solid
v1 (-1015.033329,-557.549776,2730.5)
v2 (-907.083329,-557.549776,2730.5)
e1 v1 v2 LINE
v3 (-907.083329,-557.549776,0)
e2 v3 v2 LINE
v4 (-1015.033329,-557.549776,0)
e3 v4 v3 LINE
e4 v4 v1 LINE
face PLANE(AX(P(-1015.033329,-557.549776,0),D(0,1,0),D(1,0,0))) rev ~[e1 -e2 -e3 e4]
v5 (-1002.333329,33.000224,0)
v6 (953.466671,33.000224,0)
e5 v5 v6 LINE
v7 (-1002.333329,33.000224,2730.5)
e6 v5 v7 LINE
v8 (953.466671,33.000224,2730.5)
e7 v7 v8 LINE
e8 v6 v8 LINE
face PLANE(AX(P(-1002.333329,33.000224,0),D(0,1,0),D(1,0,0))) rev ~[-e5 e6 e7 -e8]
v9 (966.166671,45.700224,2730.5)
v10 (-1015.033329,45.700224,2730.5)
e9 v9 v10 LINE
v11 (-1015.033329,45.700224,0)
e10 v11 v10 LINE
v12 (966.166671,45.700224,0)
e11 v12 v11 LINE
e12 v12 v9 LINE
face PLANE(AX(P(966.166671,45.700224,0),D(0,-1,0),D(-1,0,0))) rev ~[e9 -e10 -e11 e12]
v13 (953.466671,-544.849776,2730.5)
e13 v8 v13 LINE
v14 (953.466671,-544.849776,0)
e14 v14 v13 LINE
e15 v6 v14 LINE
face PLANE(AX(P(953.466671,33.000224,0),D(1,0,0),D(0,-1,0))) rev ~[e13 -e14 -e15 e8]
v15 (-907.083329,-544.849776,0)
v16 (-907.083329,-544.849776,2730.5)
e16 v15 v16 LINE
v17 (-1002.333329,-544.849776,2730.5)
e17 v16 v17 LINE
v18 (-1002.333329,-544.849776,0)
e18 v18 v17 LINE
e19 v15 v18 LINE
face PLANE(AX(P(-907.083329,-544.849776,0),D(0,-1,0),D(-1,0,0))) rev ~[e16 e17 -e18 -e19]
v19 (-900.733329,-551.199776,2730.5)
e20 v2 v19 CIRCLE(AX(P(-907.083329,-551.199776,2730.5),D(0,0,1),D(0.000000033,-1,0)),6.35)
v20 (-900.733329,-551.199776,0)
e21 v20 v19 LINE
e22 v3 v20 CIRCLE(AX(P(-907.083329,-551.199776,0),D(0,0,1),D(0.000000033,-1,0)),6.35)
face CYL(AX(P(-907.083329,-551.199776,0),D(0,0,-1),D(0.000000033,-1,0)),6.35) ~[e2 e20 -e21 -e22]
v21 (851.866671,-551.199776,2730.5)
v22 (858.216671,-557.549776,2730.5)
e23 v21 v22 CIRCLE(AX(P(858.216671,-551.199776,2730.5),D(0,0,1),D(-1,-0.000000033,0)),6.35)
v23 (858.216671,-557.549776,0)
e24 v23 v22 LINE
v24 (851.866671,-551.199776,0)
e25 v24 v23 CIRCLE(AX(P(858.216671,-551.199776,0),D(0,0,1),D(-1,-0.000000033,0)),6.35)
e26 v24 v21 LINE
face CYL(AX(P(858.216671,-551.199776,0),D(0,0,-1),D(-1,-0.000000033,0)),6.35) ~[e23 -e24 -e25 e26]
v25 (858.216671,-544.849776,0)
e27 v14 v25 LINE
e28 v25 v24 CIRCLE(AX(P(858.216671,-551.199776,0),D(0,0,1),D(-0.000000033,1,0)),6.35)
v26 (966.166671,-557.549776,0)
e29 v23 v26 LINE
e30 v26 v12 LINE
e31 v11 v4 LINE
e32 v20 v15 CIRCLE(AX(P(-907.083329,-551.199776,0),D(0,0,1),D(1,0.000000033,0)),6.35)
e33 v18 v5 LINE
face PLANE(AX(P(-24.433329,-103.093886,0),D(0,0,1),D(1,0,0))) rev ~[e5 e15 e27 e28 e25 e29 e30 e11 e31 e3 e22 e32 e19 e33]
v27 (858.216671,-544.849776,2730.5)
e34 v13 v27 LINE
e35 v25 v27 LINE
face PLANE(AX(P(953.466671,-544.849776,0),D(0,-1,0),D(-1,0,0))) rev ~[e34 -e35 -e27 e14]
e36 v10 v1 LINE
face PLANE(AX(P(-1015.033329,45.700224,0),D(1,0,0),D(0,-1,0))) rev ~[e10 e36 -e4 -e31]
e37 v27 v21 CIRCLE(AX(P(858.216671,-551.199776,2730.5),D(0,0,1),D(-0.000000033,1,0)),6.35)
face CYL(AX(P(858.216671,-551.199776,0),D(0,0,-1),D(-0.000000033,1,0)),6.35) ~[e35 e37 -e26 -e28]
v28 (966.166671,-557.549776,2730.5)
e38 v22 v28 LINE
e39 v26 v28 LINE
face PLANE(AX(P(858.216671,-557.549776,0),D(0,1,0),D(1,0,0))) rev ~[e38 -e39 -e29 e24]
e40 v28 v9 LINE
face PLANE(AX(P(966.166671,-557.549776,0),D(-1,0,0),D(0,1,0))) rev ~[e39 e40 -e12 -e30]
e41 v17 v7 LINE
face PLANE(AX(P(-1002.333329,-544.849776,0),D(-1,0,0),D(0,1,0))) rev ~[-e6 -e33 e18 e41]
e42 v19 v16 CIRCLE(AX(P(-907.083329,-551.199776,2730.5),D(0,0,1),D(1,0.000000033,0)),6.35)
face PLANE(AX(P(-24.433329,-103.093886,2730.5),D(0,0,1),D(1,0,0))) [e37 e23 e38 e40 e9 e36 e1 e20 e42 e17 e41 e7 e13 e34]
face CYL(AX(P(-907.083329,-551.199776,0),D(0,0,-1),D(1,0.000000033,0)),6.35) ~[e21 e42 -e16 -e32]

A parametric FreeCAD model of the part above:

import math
import FreeCAD as App
import Part
import Sketcher
Q = App.Units.Quantity

doc = App.newDocument("Part")
body = doc.addObject("PartDesign::Body", "Body")

sketch1 = body.newObject("Sketcher::SketchObject", "Sketch")
sketch1.AttachmentSupport = (doc.getObject("XY_Plane"), [""])
sketch1.MapMode = "FlatFace"
sketch1.addGeometry(Part.LineSegment(App.Vector(-1002, -545, 0), App.Vector(-1002, 33, 0)), False)
sketch1.addGeometry(Part.LineSegment(App.Vector(-1002, 33, 0), App.Vector(953, 33, 0)), False)
sketch1.addGeometry(Part.LineSegment(App.Vector(953, 33, 0), App.Vector(953, -545, 0)), False)
sketch1.addGeometry(Part.LineSegment(App.Vector(953, -545, 0), App.Vector(858, -545, 0)), False)
sketch1.addGeometry(Part.ArcOfCircle(Part.Circle(App.Vector(858, -551, 0), App.Vector(0, 0, 1), 6), math.radians(90), math.radians(180)), False)
sketch1.addGeometry(Part.ArcOfCircle(Part.Circle(App.Vector(858, -551, 0), App.Vector(0, 0, 1), 6), math.radians(-180), math.radians(-90)), False)
sketch1.addGeometry(Part.LineSegment(App.Vector(858, -558, 0), App.Vector(966, -558, 0)), False)
sketch1.addGeometry(Part.LineSegment(App.Vector(966, -558, 0), App.Vector(966, 46, 0)), False)
sketch1.addGeometry(Part.LineSegment(App.Vector(966, 46, 0), App.Vector(-1015, 46, 0)), False)
sketch1.addGeometry(Part.LineSegment(App.Vector(-1015, 46, 0), App.Vector(-1015, -558, 0)), False)
sketch1.addGeometry(Part.LineSegment(App.Vector(-1015, -558, 0), App.Vector(-907, -558, 0)), False)
sketch1.addGeometry(Part.ArcOfCircle(Part.Circle(App.Vector(-907, -551, 0), App.Vector(0, 0, 1), 6), math.radians(-90), math.radians(0)), False)
sketch1.addGeometry(Part.ArcOfCircle(Part.Circle(App.Vector(-907, -551, 0), App.Vector(0, 0, 1), 6), math.radians(0), math.radians(90)), False)
sketch1.addGeometry(Part.LineSegment(App.Vector(-907, -545, 0), App.Vector(-1002, -545, 0)), False)
sketch1.addConstraint(Sketcher.Constraint("Coincident", 0, 2, 1, 1))
sketch1.addConstraint(Sketcher.Constraint("Coincident", 1, 2, 2, 1))
sketch1.addConstraint(Sketcher.Constraint("Coincident", 2, 2, 3, 1))
sketch1.addConstraint(Sketcher.Constraint("Tangent", 3, 2, 4, 1))
sketch1.addConstraint(Sketcher.Constraint("Tangent", 4, 2, 5, 1))
sketch1.addConstraint(Sketcher.Constraint("Tangent", 5, 2, 6, 1))
sketch1.addConstraint(Sketcher.Constraint("Coincident", 6, 2, 7, 1))
sketch1.addConstraint(Sketcher.Constraint("Coincident", 7, 2, 8, 1))
sketch1.addConstraint(Sketcher.Constraint("Coincident", 8, 2, 9, 1))
sketch1.addConstraint(Sketcher.Constraint("Coincident", 9, 2, 10, 1))
sketch1.addConstraint(Sketcher.Constraint("Tangent", 10, 2, 11, 1))
sketch1.addConstraint(Sketcher.Constraint("Tangent", 11, 2, 12, 1))
sketch1.addConstraint(Sketcher.Constraint("Tangent", 12, 2, 13, 1))
sketch1.addConstraint(Sketcher.Constraint("Coincident", 13, 2, 0, 1))
sketch1.addConstraint(Sketcher.Constraint("Vertical", 0))
sketch1.addConstraint(Sketcher.Constraint("Horizontal", 1))
sketch1.addConstraint(Sketcher.Constraint("Vertical", 2))
sketch1.addConstraint(Sketcher.Constraint("Horizontal", 3))
sketch1.addConstraint(Sketcher.Constraint("Horizontal", 6))
sketch1.addConstraint(Sketcher.Constraint("Vertical", 7))
sketch1.addConstraint(Sketcher.Constraint("Horizontal", 8))
sketch1.addConstraint(Sketcher.Constraint("Vertical", 9))
sketch1.addConstraint(Sketcher.Constraint("Horizontal", 10))
sketch1.addConstraint(Sketcher.Constraint("Horizontal", 13))
sketch1.addConstraint(Sketcher.Constraint("Equal", 4, 5))
sketch1.addConstraint(Sketcher.Constraint("Equal", 5, 11))
sketch1.addConstraint(Sketcher.Constraint("Equal", 11, 12))
sketch1.addConstraint(Sketcher.Constraint("Horizontal", 5, 3, 11, 3))
sketch1.addConstraint(Sketcher.Constraint("Horizontal", 12, 3, 4, 2))
sketch1.addConstraint(Sketcher.Constraint("Horizontal", 4, 2, 11, 2))
sketch1.addConstraint(Sketcher.Constraint("Equal", 6, 10))
sketch1.addConstraint(Sketcher.Constraint("Equal", 3, 13))
sketch1.addConstraint(Sketcher.Constraint("DistanceX", 1, 1, 1, 2, Q("77 in")))
sketch1.addConstraint(Sketcher.Constraint("DistanceX", 8, 2, 8, 1, Q("78 in")))
sketch1.addConstraint(Sketcher.Constraint("Radius", 4, Q("0.25 in")))
sketch1.addConstraint(Sketcher.Constraint("DistanceY", 11, 3, 0, 2, Q("23 in")))
sketch1.addConstraint(Sketcher.Constraint("DistanceX", 4, 2, 2, 2, Q("4 in")))
sketch1.addConstraint(Sketcher.Constraint("DistanceY", 7, 1, 7, 2, Q("23.75 in")))
sketch1.addConstraint(Sketcher.Constraint("DistanceX", -1, 1, 4, 3, 858.216671))
sketch1.addConstraint(Sketcher.Constraint("DistanceY", 4, 3, -1, 1, 551.199776))
pad1 = body.newObject("PartDesign::Pad", "Pad")
pad1.Profile = sketch1
pad1.Length = Q("107.5 in")

doc.recompute()
